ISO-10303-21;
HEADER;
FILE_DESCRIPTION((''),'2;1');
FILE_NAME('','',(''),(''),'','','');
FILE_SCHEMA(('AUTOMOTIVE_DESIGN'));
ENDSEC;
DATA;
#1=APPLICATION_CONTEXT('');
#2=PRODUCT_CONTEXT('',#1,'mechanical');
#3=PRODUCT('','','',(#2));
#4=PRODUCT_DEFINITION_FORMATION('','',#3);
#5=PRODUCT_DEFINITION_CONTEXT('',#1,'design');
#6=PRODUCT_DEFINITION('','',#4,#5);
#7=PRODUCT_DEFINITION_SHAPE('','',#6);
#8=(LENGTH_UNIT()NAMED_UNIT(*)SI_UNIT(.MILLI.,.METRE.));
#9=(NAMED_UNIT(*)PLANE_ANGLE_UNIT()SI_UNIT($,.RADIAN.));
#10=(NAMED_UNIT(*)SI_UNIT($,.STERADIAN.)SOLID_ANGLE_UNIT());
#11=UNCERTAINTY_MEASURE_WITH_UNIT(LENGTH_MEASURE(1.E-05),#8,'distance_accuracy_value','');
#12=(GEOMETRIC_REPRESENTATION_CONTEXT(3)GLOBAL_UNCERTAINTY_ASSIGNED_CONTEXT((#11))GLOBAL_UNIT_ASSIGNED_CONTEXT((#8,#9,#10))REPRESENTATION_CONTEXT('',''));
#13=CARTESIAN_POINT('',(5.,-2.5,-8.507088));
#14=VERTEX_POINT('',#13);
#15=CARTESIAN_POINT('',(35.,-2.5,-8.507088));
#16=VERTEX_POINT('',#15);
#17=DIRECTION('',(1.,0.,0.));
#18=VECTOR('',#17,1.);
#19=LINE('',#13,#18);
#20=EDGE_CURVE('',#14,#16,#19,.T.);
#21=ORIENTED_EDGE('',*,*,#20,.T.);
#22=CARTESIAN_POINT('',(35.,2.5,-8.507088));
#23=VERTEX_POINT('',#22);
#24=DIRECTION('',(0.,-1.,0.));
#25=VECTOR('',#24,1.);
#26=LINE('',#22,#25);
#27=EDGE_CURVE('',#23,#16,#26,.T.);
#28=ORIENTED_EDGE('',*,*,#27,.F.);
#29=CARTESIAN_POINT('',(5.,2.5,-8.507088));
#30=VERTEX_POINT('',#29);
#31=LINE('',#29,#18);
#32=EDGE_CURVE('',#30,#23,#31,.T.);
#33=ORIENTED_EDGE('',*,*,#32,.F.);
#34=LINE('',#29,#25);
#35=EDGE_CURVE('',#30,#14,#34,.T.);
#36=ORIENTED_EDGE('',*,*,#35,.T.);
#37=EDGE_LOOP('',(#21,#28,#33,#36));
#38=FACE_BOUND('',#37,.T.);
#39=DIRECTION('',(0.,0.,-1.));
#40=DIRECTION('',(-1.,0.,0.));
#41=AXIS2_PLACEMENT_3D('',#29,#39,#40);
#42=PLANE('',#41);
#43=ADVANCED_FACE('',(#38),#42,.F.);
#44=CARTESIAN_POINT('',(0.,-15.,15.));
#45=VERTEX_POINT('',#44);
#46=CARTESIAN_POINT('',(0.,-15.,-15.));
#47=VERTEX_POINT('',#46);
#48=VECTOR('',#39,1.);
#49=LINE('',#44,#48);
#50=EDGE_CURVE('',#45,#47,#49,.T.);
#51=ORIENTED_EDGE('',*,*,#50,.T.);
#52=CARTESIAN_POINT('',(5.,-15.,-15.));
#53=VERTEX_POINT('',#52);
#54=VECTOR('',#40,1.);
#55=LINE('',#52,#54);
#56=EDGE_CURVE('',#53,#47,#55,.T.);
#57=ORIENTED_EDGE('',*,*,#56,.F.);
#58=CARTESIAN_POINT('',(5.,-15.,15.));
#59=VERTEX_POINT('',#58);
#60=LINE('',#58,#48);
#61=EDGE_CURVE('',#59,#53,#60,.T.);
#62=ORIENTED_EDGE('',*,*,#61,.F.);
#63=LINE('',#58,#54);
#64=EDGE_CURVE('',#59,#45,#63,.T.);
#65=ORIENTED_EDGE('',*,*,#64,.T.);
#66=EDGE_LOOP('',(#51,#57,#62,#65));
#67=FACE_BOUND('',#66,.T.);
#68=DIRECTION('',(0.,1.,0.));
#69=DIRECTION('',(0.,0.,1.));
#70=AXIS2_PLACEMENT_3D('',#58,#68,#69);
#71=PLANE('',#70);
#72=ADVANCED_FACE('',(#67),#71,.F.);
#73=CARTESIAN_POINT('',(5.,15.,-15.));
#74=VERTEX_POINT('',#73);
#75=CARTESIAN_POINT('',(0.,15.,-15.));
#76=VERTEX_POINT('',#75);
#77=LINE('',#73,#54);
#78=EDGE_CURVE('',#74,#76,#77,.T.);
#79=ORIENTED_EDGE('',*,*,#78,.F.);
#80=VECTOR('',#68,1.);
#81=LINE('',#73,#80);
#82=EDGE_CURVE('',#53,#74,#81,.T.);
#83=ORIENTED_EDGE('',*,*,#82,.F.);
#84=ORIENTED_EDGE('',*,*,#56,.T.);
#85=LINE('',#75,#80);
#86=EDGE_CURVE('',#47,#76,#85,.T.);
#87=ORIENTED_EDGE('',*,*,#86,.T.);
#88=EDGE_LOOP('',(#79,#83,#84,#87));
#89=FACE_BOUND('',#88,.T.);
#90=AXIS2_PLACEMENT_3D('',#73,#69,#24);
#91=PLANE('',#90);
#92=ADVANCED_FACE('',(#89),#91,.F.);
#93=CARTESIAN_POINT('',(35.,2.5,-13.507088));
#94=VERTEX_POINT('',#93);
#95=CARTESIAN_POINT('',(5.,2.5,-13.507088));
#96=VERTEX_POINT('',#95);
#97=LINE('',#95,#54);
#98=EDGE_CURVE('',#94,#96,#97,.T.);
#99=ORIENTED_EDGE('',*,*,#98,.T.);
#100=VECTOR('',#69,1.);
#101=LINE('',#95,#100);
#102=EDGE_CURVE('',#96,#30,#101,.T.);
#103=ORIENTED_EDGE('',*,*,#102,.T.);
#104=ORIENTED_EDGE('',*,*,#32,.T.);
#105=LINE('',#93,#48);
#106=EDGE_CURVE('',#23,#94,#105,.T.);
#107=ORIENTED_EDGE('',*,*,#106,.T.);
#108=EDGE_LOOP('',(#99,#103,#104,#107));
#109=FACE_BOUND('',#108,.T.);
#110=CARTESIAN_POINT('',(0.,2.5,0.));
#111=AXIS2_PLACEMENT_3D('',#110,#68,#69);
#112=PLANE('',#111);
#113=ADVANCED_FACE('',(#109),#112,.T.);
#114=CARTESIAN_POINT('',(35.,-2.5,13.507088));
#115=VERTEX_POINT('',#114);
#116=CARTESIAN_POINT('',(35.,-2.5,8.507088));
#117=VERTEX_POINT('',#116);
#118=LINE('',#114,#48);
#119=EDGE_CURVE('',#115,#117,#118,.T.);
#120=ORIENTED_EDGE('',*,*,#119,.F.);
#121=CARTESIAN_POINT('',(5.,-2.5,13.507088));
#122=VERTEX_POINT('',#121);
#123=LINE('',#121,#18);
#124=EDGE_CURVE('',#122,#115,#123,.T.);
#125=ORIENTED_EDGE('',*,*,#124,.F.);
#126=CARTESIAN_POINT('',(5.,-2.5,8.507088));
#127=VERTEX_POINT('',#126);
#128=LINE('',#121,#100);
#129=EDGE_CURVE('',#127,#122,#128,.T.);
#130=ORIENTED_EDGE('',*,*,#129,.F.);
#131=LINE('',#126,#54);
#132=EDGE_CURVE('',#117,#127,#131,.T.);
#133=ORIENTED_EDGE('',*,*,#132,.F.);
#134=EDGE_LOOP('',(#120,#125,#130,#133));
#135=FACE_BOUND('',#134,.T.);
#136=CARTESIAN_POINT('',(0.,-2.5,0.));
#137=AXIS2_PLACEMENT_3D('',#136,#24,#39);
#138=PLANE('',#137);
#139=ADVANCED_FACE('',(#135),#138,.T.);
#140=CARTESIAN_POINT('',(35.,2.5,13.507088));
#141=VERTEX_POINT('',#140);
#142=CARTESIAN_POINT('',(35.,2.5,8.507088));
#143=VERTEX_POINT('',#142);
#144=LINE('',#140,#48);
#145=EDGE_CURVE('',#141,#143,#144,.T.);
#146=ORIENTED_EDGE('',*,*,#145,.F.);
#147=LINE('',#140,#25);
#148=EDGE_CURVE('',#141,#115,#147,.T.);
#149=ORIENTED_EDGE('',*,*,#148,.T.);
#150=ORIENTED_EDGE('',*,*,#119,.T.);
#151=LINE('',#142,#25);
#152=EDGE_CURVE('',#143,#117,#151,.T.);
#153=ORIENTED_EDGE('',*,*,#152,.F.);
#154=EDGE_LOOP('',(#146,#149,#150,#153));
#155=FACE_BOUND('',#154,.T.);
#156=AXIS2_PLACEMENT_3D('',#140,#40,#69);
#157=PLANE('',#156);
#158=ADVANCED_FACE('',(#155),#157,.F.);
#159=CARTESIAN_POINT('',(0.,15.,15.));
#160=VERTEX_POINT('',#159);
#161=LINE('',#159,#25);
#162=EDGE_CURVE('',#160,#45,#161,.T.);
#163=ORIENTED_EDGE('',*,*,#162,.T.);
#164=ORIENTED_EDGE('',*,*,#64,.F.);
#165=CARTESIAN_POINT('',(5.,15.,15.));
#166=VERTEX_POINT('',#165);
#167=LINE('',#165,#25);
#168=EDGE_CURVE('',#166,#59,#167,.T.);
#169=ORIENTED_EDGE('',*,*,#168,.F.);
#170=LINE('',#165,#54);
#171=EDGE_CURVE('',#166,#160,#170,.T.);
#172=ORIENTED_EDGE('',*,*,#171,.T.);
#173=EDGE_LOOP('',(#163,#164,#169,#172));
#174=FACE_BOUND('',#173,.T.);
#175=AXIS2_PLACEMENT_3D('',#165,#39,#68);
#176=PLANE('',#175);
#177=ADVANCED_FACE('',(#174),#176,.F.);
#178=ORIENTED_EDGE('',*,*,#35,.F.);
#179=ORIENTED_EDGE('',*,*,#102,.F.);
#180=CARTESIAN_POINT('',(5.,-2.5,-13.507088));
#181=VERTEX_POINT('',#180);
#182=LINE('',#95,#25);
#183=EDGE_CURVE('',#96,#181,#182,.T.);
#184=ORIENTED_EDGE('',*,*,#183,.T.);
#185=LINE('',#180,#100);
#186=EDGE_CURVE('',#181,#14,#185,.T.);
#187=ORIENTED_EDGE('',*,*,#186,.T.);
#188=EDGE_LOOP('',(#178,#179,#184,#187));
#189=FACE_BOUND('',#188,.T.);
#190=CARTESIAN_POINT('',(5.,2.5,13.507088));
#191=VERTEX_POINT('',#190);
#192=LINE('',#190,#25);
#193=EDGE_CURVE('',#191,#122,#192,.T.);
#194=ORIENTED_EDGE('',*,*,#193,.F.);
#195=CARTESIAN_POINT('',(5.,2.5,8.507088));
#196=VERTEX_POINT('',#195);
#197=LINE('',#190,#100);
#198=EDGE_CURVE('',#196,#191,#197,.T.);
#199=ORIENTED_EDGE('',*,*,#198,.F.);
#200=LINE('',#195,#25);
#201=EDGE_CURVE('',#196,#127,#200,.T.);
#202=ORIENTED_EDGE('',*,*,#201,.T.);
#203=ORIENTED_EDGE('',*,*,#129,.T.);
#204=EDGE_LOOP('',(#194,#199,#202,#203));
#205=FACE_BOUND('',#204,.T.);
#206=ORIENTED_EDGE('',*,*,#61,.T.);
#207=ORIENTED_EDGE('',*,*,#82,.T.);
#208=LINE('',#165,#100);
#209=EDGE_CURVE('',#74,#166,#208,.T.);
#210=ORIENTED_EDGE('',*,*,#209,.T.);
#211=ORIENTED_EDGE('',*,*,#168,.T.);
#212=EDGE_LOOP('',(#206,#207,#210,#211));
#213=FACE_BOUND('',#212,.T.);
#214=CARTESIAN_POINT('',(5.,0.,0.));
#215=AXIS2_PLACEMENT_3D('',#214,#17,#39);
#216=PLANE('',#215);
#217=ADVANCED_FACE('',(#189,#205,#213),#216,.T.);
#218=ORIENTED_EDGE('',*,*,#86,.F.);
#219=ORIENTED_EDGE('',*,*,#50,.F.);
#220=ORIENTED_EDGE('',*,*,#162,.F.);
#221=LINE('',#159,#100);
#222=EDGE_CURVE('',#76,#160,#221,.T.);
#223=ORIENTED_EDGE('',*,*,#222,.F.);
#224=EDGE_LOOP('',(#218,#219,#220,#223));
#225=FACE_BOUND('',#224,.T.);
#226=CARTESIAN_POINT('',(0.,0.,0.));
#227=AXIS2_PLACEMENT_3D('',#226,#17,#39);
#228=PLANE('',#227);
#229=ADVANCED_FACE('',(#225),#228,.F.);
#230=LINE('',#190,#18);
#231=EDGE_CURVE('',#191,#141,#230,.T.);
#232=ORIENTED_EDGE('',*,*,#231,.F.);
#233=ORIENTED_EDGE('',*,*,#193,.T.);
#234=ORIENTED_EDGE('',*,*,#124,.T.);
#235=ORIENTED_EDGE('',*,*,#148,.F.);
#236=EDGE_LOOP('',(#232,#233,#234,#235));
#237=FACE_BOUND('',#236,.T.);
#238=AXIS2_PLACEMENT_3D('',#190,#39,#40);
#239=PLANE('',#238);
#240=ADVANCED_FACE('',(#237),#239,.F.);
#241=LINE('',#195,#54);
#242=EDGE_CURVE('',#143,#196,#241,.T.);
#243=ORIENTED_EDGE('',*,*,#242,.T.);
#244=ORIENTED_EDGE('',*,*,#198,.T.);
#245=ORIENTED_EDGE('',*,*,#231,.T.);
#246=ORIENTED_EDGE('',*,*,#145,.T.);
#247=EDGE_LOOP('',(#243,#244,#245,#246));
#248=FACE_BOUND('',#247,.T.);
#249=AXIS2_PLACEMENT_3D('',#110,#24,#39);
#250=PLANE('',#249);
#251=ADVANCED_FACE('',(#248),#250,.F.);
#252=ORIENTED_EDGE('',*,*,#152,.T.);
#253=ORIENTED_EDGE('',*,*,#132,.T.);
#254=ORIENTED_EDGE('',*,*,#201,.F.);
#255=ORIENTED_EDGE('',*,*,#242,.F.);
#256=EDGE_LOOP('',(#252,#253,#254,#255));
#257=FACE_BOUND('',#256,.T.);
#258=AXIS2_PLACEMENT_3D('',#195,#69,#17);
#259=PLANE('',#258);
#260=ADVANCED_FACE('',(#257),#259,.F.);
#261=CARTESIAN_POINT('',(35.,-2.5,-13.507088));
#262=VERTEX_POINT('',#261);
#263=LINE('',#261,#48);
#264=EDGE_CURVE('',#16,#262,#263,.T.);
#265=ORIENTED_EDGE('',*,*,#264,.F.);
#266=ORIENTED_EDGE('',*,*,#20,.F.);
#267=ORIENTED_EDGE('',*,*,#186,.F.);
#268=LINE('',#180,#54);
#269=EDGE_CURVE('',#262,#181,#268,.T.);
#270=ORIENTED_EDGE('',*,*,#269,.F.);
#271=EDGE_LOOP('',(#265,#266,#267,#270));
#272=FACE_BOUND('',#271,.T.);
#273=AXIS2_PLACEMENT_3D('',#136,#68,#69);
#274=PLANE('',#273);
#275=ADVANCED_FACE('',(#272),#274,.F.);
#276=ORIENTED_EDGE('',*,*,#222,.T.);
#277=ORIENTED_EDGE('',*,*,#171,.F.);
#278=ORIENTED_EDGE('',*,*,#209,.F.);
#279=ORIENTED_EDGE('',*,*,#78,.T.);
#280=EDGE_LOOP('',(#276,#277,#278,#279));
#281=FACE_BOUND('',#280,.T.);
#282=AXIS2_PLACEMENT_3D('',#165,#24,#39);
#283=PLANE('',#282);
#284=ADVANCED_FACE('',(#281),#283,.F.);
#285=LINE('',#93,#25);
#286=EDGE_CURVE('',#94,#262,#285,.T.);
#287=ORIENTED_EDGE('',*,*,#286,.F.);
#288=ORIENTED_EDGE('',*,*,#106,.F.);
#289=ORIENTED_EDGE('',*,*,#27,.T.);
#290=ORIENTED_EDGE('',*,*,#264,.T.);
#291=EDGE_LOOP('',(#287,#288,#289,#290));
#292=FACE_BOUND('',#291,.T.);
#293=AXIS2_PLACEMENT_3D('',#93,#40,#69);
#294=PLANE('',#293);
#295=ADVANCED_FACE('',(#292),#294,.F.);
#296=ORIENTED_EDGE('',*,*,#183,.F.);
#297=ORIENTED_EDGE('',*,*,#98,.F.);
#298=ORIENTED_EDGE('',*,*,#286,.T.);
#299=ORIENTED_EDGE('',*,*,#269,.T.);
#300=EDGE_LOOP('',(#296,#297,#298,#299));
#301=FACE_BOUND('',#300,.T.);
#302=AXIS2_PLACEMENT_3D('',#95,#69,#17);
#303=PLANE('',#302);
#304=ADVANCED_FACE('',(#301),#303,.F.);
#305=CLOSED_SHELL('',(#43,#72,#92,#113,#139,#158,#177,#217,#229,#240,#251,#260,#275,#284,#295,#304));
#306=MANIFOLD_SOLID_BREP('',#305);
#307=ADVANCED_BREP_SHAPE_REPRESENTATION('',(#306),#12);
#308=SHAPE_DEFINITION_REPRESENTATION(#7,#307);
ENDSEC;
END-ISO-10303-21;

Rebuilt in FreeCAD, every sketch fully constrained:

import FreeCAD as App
import Part
import Sketcher

doc = App.newDocument("Part")
body = doc.addObject("PartDesign::Body", "Body")

# Sketch on YZ plane
sketch1 = body.newObject("Sketcher::SketchObject", "Sketch")
sketch1.AttachmentSupport = (doc.getObject("YZ_Plane"), [""])
sketch1.MapMode = "FlatFace"
sketch1.addGeometry(Part.LineSegment(App.Vector(15, 15, 0), App.Vector(-15, 15, 0)), False)
sketch1.addGeometry(Part.LineSegment(App.Vector(-15, 15, 0), App.Vector(-15, -15, 0)), False)
sketch1.addGeometry(Part.LineSegment(App.Vector(-15, -15, 0), App.Vector(15, -15, 0)), False)
sketch1.addGeometry(Part.LineSegment(App.Vector(15, -15, 0), App.Vector(15, 15, 0)), False)
sketch1.addConstraint(Sketcher.Constraint("Coincident", 0, 2, 1, 1))
sketch1.addConstraint(Sketcher.Constraint("Coincident", 1, 2, 2, 1))
sketch1.addConstraint(Sketcher.Constraint("Coincident", 2, 2, 3, 1))
sketch1.addConstraint(Sketcher.Constraint("Coincident", 3, 2, 0, 1))
sketch1.addConstraint(Sketcher.Constraint("Horizontal", 0))
sketch1.addConstraint(Sketcher.Constraint("Vertical", 1))
sketch1.addConstraint(Sketcher.Constraint("Horizontal", 2))
sketch1.addConstraint(Sketcher.Constraint("Vertical", 3))
sketch1.addConstraint(Sketcher.Constraint("Symmetric", 0, 2, 2, 2, -1, 1))
sketch1.addConstraint(Sketcher.Constraint("Equal", 2, 1))
sketch1.addConstraint(Sketcher.Constraint("DistanceX", 0, 2, 0, 1, 30.0))
pad1 = body.newObject("PartDesign::Pad", "Pad")
pad1.Profile = sketch1
pad1.Length = 5

# Sketch on XZ plane
sketch2 = body.newObject("Sketcher::SketchObject", "Sketch001")
sketch2.AttachmentSupport = (doc.getObject("XZ_Plane"), [""])
sketch2.MapMode = "FlatFace"
sketch2.addGeometry(Part.LineSegment(App.Vector(5, -14, 0), App.Vector(5, -9, 0)), False)
sketch2.addGeometry(Part.LineSegment(App.Vector(5, -9, 0), App.Vector(35, -9, 0)), False)
sketch2.addGeometry(Part.LineSegment(App.Vector(35, -9, 0), App.Vector(35, -14, 0)), False)
sketch2.addGeometry(Part.LineSegment(App.Vector(35, -14, 0), App.Vector(5, -14, 0)), False)
sketch2.addGeometry(Part.LineSegment(App.Vector(5, 9, 0), App.Vector(5, 14, 0)), False)
sketch2.addGeometry(Part.LineSegment(App.Vector(5, 14, 0), App.Vector(35, 14, 0)), False)
sketch2.addGeometry(Part.LineSegment(App.Vector(35, 14, 0), App.Vector(35, 9, 0)), False)
sketch2.addGeometry(Part.LineSegment(App.Vector(35, 9, 0), App.Vector(5, 9, 0)), False)
sketch2.addConstraint(Sketcher.Constraint("Coincident", 0, 2, 1, 1))
sketch2.addConstraint(Sketcher.Constraint("Coincident", 1, 2, 2, 1))
sketch2.addConstraint(Sketcher.Constraint("Coincident", 2, 2, 3, 1))
sketch2.addConstraint(Sketcher.Constraint("Coincident", 3, 2, 0, 1))
sketch2.addConstraint(Sketcher.Constraint("Coincident", 4, 2, 5, 1))
sketch2.addConstraint(Sketcher.Constraint("Coincident", 5, 2, 6, 1))
sketch2.addConstraint(Sketcher.Constraint("Coincident", 6, 2, 7, 1))
sketch2.addConstraint(Sketcher.Constraint("Coincident", 7, 2, 4, 1))
sketch2.addConstraint(Sketcher.Constraint("Vertical", 0))
sketch2.addConstraint(Sketcher.Constraint("Horizontal", 1))
sketch2.addConstraint(Sketcher.Constraint("Vertical", 2))
sketch2.addConstraint(Sketcher.Constraint("Horizontal", 3))
sketch2.addConstraint(Sketcher.Constraint("Vertical", 4))
sketch2.addConstraint(Sketcher.Constraint("Horizontal", 5))
sketch2.addConstraint(Sketcher.Constraint("Vertical", 6))
sketch2.addConstraint(Sketcher.Constraint("Horizontal", 7))
sketch2.addConstraint(Sketcher.Constraint("Symmetric", 3, 2, 4, 2, -1))
sketch2.addConstraint(Sketcher.Constraint("Symmetric", 1, 2, 6, 2, -1))
sketch2.addConstraint(Sketcher.Constraint("DistanceX", 1, 1, 1, 2, 30.0))
sketch2.addConstraint(Sketcher.Constraint("DistanceY", 0, 1, 0, 2, 5.0))
sketch2.addConstraint(Sketcher.Constraint("DistanceX", -1, 1, 0, 2, 5.0))
sketch2.addConstraint(Sketcher.Constraint("DistanceY", 0, 2, -1, 1, 8.507088))
pad2 = body.newObject("PartDesign::Pad", "Pad001")
pad2.Profile = sketch2
pad2.Length = 5
pad2.Midplane = True

doc.recompute()
